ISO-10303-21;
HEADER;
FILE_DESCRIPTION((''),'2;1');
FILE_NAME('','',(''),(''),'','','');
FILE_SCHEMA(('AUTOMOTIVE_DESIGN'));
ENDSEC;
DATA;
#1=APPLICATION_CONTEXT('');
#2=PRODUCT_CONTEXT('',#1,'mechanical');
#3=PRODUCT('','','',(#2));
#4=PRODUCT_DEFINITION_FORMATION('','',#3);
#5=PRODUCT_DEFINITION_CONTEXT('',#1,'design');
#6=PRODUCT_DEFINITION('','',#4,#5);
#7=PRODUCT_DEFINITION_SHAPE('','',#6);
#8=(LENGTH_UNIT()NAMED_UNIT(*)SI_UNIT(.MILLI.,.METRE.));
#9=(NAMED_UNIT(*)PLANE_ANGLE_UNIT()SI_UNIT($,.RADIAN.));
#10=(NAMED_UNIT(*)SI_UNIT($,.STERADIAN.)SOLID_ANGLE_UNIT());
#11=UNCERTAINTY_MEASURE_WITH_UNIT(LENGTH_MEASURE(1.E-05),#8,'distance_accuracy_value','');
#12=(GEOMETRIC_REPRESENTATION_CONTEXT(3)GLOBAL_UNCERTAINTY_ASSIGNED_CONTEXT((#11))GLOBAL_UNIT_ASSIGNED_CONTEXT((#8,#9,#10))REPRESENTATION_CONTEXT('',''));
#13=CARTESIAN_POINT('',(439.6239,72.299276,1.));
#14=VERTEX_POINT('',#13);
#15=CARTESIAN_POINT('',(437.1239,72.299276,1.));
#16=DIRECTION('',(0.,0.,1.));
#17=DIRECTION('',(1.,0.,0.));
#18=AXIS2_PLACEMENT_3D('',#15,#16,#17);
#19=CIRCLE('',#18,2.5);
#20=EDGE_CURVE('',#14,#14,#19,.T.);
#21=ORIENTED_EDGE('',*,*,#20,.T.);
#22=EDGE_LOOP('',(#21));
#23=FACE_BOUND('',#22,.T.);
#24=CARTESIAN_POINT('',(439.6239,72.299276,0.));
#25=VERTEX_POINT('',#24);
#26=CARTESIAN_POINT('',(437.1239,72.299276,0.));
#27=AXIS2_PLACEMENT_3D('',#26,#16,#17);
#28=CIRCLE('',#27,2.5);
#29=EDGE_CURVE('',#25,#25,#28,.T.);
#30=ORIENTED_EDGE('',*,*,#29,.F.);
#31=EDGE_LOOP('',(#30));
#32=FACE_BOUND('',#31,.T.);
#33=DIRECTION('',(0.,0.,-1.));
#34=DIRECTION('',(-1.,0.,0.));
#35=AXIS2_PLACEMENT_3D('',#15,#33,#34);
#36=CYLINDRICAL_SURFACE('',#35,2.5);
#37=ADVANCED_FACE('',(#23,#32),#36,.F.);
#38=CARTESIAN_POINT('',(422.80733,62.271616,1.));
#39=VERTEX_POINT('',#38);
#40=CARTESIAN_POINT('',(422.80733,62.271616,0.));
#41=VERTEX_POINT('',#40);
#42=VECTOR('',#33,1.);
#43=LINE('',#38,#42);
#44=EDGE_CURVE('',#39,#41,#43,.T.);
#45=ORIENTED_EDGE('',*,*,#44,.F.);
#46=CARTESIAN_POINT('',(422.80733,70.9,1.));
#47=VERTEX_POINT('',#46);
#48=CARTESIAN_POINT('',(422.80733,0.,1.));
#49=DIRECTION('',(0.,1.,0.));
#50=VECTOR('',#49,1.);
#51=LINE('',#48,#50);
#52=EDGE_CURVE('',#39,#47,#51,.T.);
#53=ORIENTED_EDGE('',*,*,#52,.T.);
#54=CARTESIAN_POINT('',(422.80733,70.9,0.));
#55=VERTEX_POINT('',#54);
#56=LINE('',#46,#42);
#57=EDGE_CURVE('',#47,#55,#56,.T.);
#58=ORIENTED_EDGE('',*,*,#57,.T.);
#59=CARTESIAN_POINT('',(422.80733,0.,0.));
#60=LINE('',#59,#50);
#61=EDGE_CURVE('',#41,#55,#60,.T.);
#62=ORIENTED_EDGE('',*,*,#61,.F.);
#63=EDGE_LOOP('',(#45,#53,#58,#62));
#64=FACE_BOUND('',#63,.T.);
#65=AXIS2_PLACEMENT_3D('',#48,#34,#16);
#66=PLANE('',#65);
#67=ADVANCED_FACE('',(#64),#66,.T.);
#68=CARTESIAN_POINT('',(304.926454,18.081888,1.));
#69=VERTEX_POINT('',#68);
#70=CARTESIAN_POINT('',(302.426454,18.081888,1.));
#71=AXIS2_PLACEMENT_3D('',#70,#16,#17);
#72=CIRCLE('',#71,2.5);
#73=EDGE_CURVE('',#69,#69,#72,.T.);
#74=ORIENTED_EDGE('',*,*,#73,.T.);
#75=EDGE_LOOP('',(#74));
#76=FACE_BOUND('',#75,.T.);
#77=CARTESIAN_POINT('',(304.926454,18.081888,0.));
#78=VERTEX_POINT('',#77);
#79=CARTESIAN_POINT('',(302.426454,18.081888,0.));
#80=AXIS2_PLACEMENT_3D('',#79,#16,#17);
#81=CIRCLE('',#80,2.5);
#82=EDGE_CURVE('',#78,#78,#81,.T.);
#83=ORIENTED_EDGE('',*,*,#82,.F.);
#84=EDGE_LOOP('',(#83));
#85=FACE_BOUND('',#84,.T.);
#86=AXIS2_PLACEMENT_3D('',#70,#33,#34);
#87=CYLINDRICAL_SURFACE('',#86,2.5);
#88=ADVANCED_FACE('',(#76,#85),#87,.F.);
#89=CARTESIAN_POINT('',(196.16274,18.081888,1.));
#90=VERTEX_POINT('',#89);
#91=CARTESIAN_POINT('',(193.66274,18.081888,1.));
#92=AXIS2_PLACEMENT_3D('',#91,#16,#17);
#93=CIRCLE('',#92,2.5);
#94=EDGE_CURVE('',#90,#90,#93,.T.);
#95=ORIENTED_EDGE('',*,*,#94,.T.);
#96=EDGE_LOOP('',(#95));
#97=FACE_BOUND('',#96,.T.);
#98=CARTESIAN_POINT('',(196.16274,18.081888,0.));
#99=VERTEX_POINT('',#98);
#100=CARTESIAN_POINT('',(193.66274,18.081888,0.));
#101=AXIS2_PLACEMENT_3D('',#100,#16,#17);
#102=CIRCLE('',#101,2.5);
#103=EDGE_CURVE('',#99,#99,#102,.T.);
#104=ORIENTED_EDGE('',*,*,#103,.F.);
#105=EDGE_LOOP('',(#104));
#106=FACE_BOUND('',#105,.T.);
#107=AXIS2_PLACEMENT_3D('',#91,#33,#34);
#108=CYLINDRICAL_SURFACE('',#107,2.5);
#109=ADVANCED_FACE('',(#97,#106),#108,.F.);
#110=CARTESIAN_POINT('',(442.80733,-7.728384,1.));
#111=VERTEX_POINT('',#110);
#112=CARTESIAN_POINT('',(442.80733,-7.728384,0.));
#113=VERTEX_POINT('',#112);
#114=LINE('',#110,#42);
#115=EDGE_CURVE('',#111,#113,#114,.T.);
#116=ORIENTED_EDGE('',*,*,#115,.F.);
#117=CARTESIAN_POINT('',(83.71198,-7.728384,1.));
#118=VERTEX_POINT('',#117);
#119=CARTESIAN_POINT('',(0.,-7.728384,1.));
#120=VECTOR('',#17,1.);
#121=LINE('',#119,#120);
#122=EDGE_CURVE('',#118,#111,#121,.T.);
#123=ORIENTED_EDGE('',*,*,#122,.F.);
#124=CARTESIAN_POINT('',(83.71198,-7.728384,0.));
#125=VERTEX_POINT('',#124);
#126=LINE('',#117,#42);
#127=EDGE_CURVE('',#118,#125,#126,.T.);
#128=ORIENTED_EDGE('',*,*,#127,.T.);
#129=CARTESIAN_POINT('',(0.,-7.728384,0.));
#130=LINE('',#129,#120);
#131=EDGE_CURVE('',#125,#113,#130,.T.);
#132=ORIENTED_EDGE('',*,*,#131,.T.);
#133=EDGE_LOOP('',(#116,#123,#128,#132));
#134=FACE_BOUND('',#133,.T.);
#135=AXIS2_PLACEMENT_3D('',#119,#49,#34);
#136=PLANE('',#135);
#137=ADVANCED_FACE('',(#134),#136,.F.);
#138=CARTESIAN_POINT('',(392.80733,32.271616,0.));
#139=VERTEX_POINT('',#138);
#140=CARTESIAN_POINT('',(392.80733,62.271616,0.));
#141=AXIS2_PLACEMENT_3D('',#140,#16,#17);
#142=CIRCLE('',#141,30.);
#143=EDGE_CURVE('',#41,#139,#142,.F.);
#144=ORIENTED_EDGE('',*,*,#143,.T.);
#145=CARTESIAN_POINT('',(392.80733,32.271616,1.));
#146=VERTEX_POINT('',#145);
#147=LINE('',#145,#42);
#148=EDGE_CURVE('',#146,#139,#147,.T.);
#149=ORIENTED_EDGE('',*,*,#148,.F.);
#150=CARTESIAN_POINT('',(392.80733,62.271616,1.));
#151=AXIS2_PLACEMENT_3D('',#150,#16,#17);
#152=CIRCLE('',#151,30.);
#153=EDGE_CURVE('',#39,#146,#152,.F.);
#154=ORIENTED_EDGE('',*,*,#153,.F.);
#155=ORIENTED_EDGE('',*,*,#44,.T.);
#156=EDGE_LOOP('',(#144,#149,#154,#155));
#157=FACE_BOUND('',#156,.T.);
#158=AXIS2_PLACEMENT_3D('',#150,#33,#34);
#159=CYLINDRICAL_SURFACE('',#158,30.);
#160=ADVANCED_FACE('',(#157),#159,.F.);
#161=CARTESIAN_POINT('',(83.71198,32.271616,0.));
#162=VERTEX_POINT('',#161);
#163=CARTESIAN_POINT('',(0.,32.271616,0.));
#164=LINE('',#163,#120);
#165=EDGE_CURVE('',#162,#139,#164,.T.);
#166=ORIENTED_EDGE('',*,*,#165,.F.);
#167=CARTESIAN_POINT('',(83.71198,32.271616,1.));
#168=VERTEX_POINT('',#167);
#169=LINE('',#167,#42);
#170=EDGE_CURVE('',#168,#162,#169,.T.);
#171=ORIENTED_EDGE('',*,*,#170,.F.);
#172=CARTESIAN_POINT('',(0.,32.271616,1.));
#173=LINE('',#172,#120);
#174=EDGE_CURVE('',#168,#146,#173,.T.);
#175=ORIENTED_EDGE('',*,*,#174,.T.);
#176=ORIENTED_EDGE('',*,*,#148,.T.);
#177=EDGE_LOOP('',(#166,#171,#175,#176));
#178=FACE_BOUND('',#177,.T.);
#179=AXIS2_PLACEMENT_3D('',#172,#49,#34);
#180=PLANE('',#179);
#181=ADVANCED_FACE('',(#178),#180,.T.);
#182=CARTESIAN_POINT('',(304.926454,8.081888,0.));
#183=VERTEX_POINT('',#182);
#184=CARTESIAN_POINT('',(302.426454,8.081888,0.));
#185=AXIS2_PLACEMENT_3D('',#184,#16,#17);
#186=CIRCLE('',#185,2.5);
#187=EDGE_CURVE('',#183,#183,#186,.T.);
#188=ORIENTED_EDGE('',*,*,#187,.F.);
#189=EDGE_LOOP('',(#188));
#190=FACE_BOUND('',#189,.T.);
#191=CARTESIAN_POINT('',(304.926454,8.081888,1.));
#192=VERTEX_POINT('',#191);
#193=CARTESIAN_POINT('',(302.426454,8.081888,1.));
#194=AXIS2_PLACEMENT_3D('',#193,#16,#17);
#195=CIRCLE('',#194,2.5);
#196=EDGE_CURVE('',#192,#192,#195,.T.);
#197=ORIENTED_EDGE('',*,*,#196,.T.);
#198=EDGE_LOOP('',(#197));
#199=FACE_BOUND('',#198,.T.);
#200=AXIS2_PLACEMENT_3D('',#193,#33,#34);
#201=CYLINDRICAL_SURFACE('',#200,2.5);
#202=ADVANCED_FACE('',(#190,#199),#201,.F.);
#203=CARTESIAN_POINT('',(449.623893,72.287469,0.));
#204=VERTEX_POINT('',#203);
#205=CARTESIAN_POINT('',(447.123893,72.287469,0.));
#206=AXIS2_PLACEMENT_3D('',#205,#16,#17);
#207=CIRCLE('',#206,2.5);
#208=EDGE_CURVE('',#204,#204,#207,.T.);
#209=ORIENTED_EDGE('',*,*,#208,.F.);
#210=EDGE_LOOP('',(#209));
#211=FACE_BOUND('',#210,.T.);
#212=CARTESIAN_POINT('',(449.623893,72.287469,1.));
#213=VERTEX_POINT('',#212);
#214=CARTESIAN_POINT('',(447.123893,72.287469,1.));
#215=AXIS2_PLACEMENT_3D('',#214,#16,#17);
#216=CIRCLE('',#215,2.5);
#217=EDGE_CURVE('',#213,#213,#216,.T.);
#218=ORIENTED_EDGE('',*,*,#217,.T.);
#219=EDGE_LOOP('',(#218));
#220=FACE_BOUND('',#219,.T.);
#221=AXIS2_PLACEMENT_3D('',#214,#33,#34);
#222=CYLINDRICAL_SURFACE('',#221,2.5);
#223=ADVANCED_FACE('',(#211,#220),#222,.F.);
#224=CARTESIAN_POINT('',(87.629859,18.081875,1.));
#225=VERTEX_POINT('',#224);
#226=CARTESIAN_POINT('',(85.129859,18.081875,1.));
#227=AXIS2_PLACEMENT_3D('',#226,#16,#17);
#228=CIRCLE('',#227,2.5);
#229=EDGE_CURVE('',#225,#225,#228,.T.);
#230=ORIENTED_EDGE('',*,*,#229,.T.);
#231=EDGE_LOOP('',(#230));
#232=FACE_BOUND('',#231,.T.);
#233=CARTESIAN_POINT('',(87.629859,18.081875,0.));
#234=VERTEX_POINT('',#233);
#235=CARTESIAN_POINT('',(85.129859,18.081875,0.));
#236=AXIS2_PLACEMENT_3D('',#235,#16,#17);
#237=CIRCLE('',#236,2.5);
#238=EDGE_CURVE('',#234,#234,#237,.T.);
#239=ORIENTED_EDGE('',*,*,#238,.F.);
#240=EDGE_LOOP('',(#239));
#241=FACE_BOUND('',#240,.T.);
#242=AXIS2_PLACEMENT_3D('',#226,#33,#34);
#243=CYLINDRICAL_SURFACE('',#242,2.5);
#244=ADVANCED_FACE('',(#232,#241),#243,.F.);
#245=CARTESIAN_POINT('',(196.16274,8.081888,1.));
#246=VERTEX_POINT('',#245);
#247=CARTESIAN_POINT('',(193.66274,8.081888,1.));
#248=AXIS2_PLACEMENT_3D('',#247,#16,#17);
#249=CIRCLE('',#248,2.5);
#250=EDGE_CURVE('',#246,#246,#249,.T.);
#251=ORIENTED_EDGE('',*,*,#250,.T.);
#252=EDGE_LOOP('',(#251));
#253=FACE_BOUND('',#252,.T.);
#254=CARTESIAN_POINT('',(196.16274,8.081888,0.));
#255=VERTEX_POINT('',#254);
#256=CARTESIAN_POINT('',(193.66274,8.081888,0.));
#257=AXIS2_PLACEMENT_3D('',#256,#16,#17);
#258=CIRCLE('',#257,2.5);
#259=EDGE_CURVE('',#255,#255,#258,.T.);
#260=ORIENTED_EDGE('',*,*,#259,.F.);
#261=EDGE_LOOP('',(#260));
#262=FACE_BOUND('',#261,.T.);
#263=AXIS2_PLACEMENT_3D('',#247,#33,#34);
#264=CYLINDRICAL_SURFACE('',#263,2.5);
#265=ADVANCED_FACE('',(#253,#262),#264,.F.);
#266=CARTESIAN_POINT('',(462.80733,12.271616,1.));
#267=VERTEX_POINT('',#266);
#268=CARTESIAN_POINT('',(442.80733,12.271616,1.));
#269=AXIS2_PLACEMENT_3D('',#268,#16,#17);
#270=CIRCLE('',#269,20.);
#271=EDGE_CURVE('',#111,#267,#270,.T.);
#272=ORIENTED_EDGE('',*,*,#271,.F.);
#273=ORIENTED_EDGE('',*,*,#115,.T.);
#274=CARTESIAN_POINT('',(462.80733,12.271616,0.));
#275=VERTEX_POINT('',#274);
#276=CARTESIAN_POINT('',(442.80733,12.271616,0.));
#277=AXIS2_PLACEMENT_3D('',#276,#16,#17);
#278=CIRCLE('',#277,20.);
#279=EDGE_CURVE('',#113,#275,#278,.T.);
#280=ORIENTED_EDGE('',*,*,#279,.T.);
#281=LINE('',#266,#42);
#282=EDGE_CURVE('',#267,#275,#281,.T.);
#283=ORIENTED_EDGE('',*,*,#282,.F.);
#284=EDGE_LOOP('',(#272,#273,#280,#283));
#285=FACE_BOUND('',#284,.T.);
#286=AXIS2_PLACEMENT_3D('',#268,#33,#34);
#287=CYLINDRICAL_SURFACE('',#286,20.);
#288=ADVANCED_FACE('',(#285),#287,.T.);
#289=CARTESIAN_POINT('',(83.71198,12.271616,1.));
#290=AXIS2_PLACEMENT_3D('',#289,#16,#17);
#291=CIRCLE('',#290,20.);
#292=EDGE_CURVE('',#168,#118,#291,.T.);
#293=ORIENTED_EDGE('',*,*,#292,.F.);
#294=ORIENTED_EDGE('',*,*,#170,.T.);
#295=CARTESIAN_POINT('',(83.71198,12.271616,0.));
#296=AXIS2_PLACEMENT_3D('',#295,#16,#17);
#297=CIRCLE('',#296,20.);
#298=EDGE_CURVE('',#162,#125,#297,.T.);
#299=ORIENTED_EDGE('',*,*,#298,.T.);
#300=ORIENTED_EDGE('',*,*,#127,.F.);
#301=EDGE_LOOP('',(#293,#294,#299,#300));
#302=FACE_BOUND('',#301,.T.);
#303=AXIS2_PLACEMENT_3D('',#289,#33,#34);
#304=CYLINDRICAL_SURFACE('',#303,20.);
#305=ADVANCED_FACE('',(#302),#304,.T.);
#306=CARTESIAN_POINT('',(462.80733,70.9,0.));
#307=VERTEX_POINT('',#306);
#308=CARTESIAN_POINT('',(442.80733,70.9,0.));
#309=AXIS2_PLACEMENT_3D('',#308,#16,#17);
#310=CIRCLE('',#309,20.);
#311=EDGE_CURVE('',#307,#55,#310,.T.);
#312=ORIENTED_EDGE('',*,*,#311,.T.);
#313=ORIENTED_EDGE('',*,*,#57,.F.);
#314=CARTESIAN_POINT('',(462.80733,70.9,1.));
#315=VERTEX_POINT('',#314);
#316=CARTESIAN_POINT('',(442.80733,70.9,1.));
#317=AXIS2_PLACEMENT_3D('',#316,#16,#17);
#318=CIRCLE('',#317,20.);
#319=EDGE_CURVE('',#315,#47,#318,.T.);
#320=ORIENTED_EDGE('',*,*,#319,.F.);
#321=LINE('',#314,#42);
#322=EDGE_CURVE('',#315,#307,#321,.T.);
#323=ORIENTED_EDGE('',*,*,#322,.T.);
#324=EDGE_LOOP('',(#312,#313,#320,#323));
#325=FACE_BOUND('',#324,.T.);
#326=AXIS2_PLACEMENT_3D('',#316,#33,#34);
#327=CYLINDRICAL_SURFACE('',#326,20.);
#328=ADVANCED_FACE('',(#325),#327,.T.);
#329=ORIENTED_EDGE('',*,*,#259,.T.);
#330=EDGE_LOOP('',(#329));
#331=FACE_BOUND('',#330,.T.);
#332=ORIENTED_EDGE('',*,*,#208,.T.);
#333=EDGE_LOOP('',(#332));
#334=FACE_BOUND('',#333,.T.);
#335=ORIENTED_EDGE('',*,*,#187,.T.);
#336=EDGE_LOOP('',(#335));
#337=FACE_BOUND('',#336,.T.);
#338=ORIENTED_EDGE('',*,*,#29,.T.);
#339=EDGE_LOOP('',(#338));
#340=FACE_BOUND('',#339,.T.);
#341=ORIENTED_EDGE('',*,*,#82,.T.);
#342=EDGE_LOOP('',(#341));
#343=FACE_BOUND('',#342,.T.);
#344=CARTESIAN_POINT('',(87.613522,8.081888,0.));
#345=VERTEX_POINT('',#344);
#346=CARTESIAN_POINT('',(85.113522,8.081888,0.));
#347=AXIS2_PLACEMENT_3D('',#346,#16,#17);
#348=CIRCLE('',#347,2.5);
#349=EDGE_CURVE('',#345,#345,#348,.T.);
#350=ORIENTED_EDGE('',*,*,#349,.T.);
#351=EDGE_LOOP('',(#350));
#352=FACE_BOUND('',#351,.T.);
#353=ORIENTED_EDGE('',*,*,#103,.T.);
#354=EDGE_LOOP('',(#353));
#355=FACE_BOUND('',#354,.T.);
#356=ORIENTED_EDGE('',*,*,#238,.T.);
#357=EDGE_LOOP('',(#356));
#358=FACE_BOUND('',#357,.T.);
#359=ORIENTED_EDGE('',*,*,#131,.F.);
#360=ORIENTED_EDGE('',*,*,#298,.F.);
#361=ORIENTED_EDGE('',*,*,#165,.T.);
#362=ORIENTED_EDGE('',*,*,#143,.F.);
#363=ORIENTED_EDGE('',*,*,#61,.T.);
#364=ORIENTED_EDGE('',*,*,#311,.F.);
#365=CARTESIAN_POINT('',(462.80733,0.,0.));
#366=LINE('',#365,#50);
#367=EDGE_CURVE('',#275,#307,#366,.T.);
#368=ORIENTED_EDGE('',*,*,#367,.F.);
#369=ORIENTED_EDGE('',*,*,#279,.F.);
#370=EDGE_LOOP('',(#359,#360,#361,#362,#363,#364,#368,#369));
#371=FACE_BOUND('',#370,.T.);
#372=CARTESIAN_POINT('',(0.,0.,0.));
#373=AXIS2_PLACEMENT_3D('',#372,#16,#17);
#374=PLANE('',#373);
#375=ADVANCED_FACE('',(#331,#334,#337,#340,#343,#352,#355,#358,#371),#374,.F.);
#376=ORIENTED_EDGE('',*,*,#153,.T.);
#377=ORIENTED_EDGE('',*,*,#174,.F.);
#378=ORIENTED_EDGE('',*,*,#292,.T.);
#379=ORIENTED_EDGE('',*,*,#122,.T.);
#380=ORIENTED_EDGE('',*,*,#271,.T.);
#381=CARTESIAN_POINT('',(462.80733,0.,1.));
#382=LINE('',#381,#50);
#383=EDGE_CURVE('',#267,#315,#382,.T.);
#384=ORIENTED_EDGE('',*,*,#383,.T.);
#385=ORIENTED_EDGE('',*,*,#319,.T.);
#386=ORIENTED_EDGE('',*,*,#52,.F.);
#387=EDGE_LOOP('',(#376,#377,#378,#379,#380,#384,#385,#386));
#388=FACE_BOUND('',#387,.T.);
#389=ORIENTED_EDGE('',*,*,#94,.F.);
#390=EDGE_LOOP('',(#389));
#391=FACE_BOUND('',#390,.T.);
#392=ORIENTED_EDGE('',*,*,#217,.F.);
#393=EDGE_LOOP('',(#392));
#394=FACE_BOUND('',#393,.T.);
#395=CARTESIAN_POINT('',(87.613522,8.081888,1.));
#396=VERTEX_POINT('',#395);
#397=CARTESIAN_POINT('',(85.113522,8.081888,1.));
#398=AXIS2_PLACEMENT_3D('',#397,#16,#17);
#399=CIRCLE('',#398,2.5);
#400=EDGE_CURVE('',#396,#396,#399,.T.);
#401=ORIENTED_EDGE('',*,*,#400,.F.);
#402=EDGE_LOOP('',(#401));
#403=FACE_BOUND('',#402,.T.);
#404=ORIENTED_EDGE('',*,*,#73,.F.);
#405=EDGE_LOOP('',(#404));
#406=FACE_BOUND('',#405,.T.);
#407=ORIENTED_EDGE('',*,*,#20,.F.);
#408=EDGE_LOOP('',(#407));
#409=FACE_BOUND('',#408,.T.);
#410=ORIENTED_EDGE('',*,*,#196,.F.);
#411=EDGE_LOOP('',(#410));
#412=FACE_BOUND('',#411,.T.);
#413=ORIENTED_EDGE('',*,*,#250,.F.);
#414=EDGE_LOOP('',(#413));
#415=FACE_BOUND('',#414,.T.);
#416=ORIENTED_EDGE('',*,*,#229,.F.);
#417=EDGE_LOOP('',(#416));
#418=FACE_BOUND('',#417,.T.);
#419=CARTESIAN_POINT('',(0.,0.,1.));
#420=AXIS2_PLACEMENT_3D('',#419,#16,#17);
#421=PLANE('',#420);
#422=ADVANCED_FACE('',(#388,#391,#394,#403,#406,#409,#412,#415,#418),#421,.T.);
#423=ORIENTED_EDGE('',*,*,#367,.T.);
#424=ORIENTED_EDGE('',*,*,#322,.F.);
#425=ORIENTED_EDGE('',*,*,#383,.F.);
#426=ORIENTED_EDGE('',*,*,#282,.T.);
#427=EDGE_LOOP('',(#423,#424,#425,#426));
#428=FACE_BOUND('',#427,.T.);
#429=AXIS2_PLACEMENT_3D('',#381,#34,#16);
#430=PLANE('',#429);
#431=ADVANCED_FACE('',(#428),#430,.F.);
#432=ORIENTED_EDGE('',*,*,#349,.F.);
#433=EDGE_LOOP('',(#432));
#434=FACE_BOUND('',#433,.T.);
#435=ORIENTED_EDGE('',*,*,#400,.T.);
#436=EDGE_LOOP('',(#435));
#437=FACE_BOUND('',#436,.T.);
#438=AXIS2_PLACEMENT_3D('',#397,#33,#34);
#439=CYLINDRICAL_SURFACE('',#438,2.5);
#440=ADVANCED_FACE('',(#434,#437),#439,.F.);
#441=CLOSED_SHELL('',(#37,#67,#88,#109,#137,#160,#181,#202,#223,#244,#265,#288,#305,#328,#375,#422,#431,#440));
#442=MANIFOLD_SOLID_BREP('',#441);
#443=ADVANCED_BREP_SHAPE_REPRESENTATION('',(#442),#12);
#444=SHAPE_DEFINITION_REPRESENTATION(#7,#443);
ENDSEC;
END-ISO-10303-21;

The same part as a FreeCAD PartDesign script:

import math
import FreeCAD as App
import Part
import Sketcher
from FreeCAD import Vector
Q = App.Units.Quantity

doc = App.newDocument("Part")
body = doc.addObject("PartDesign::Body", "Body")

sketch1 = body.newObject("Sketcher::SketchObject", "Sketch")
sketch1.AttachmentSupport = (doc.getObject("XY_Plane"), [""])
sketch1.MapMode = "FlatFace"
sketch1.addGeometry(Part.LineSegment(Vector(422.8, 70.9, 0), Vector(422.8, 62.3, 0)), False)
sketch1.addGeometry(Part.ArcOfCircle(Part.Circle(Vector(392.8, 62.3, 0), Vector(0, 0, 1), 30), math.radians(-90), math.radians(0)), False)
sketch1.addGeometry(Part.LineSegment(Vector(392.8, 32.3, 0), Vector(83.7, 32.3, 0)), False)
sketch1.addGeometry(Part.ArcOfCircle(Part.Circle(Vector(83.7, 12.3, 0), Vector(0, 0, 1), 20), math.radians(90), math.radians(270)), False)
sketch1.addGeometry(Part.LineSegment(Vector(83.7, -7.7, 0), Vector(442.8, -7.7, 0)), False)
sketch1.addGeometry(Part.ArcOfCircle(Part.Circle(Vector(442.8, 12.3, 0), Vector(0, 0, 1), 20), math.radians(-90), math.radians(0)), False)
sketch1.addGeometry(Part.LineSegment(Vector(462.8, 12.3, 0), Vector(462.8, 70.9, 0)), False)
sketch1.addGeometry(Part.ArcOfCircle(Part.Circle(Vector(442.8, 70.9, 0), Vector(0, 0, 1), 20), math.radians(0), math.radians(180)), False)
sketch1.addGeometry(Part.Circle(Vector(302.4, 8.1, 0), Vector(0, 0, 1), 2.5), False)
sketch1.addGeometry(Part.Circle(Vector(302.4, 18.1, 0), Vector(0, 0, 1), 2.5), False)
sketch1.addGeometry(Part.Circle(Vector(193.7, 8.1, 0), Vector(0, 0, 1), 2.5), False)
sketch1.addGeometry(Part.Circle(Vector(193.7, 18.1, 0), Vector(0, 0, 1), 2.5), False)
sketch1.addGeometry(Part.Circle(Vector(85.1, 8.1, 0), Vector(0, 0, 1), 2.5), False)
sketch1.addGeometry(Part.Circle(Vector(85.1, 18.1, 0), Vector(0, 0, 1), 2.5), False)
sketch1.addGeometry(Part.Circle(Vector(447.1, 72.3, 0), Vector(0, 0, 1), 2.5), False)
sketch1.addGeometry(Part.Circle(Vector(437.1, 72.3, 0), Vector(0, 0, 1), 2.5), False)
sketch1.addConstraint(Sketcher.Constraint("Tangent", 0, 2, 1, 2))
sketch1.addConstraint(Sketcher.Constraint("Tangent", 1, 1, 2, 1))
sketch1.addConstraint(Sketcher.Constraint("Tangent", 2, 2, 3, 1))
sketch1.addConstraint(Sketcher.Constraint("Tangent", 3, 2, 4, 1))
sketch1.addConstraint(Sketcher.Constraint("Tangent", 4, 2, 5, 1))
sketch1.addConstraint(Sketcher.Constraint("Tangent", 5, 2, 6, 1))
sketch1.addConstraint(Sketcher.Constraint("Tangent", 6, 2, 7, 1))
sketch1.addConstraint(Sketcher.Constraint("Tangent", 7, 2, 0, 1))
sketch1.addConstraint(Sketcher.Constraint("Vertical", 0))
sketch1.addConstraint(Sketcher.Constraint("Horizontal", 2))
sketch1.addConstraint(Sketcher.Constraint("Horizontal", 4))
sketch1.addConstraint(Sketcher.Constraint("Vertical", 6))
sketch1.addConstraint(Sketcher.Constraint("Equal", 3, 5))
sketch1.addConstraint(Sketcher.Constraint("Equal", 5, 7))
sketch1.addConstraint(Sketcher.Constraint("Equal", 8, 9))
sketch1.addConstraint(Sketcher.Constraint("Equal", 9, 10))
sketch1.addConstraint(Sketcher.Constraint("Equal", 10, 11))
sketch1.addConstraint(Sketcher.Constraint("Equal", 11, 12))
sketch1.addConstraint(Sketcher.Constraint("Equal", 12, 13))
sketch1.addConstraint(Sketcher.Constraint("Equal", 13, 14))
sketch1.addConstraint(Sketcher.Constraint("Equal", 14, 15))
sketch1.addConstraint(Sketcher.Constraint("Horizontal", 8, 3, 10, 3))
sketch1.addConstraint(Sketcher.Constraint("Horizontal", 9, 3, 11, 3))
sketch1.addConstraint(Sketcher.Constraint("Horizontal", 10, 3, 12, 3))
sketch1.addConstraint(Sketcher.Constraint("Vertical", 8, 3, 9, 3))
sketch1.addConstraint(Sketcher.Constraint("Vertical", 10, 3, 11, 3))
sketch1.addConstraint(Sketcher.Constraint("Diameter", 8, Q("5 mm")))
sketch1.addConstraint(Sketcher.Constraint("Radius", 1, Q("30 mm")))
sketch1.addConstraint(Sketcher.Constraint("Radius", 3, Q("20 mm")))
sketch1.addConstraint(Sketcher.Constraint("DistanceY", 8, 3, 9, 3, Q("10 mm")))
sketch1.addConstraint(Sketcher.Constraint("DistanceY", -1, 1, 7, 3, Q("70.9 mm")))
sketch1.addConstraint(Sketcher.Constraint("DistanceX", 2, 2, 2, 1, Q("309.09535 mm")))
sketch1.addConstraint(Sketcher.Constraint("DistanceX", -1, 1, 15, 3, Q("437.1239 mm")))
sketch1.addConstraint(Sketcher.Constraint("DistanceY", 0, 2, 0, 1, Q("8.628384 mm")))
sketch1.addConstraint(Sketcher.Constraint("DistanceX", -1, 1, 1, 3, Q("392.80733 mm")))
sketch1.addConstraint(Sketcher.Constraint("DistanceY", -1, 1, 8, 3, Q("8.081888 mm")))
sketch1.addConstraint(Sketcher.Constraint("DistanceX", -1, 1, 10, 3, Q("193.66274 mm")))
sketch1.addConstraint(Sketcher.Constraint("DistanceX", -1, 1, 12, 3, Q("85.113522 mm")))
sketch1.addConstraint(Sketcher.Constraint("DistanceX", -1, 1, 13, 3, Q("85.129859 mm")))
sketch1.addConstraint(Sketcher.Constraint("DistanceY", -1, 1, 14, 3, Q("72.287469 mm")))
sketch1.addConstraint(Sketcher.Constraint("DistanceY", 3, 3, 13, 3, Q("5.810259 mm")))
sketch1.addConstraint(Sketcher.Constraint("DistanceX", 9, 3, 14, 3, Q("144.697439 mm")))
sketch1.addConstraint(Sketcher.Constraint("DistanceY", 1, 3, 15, 3, Q("10.02766 mm")))
sketch1.addConstraint(Sketcher.Constraint("DistanceX", -1, 1, 8, 3, Q("302.426454 mm")))
pad1 = body.newObject("PartDesign::Pad", "Pad")
pad1.Profile = sketch1
pad1.Length = 1

doc.recompute()
